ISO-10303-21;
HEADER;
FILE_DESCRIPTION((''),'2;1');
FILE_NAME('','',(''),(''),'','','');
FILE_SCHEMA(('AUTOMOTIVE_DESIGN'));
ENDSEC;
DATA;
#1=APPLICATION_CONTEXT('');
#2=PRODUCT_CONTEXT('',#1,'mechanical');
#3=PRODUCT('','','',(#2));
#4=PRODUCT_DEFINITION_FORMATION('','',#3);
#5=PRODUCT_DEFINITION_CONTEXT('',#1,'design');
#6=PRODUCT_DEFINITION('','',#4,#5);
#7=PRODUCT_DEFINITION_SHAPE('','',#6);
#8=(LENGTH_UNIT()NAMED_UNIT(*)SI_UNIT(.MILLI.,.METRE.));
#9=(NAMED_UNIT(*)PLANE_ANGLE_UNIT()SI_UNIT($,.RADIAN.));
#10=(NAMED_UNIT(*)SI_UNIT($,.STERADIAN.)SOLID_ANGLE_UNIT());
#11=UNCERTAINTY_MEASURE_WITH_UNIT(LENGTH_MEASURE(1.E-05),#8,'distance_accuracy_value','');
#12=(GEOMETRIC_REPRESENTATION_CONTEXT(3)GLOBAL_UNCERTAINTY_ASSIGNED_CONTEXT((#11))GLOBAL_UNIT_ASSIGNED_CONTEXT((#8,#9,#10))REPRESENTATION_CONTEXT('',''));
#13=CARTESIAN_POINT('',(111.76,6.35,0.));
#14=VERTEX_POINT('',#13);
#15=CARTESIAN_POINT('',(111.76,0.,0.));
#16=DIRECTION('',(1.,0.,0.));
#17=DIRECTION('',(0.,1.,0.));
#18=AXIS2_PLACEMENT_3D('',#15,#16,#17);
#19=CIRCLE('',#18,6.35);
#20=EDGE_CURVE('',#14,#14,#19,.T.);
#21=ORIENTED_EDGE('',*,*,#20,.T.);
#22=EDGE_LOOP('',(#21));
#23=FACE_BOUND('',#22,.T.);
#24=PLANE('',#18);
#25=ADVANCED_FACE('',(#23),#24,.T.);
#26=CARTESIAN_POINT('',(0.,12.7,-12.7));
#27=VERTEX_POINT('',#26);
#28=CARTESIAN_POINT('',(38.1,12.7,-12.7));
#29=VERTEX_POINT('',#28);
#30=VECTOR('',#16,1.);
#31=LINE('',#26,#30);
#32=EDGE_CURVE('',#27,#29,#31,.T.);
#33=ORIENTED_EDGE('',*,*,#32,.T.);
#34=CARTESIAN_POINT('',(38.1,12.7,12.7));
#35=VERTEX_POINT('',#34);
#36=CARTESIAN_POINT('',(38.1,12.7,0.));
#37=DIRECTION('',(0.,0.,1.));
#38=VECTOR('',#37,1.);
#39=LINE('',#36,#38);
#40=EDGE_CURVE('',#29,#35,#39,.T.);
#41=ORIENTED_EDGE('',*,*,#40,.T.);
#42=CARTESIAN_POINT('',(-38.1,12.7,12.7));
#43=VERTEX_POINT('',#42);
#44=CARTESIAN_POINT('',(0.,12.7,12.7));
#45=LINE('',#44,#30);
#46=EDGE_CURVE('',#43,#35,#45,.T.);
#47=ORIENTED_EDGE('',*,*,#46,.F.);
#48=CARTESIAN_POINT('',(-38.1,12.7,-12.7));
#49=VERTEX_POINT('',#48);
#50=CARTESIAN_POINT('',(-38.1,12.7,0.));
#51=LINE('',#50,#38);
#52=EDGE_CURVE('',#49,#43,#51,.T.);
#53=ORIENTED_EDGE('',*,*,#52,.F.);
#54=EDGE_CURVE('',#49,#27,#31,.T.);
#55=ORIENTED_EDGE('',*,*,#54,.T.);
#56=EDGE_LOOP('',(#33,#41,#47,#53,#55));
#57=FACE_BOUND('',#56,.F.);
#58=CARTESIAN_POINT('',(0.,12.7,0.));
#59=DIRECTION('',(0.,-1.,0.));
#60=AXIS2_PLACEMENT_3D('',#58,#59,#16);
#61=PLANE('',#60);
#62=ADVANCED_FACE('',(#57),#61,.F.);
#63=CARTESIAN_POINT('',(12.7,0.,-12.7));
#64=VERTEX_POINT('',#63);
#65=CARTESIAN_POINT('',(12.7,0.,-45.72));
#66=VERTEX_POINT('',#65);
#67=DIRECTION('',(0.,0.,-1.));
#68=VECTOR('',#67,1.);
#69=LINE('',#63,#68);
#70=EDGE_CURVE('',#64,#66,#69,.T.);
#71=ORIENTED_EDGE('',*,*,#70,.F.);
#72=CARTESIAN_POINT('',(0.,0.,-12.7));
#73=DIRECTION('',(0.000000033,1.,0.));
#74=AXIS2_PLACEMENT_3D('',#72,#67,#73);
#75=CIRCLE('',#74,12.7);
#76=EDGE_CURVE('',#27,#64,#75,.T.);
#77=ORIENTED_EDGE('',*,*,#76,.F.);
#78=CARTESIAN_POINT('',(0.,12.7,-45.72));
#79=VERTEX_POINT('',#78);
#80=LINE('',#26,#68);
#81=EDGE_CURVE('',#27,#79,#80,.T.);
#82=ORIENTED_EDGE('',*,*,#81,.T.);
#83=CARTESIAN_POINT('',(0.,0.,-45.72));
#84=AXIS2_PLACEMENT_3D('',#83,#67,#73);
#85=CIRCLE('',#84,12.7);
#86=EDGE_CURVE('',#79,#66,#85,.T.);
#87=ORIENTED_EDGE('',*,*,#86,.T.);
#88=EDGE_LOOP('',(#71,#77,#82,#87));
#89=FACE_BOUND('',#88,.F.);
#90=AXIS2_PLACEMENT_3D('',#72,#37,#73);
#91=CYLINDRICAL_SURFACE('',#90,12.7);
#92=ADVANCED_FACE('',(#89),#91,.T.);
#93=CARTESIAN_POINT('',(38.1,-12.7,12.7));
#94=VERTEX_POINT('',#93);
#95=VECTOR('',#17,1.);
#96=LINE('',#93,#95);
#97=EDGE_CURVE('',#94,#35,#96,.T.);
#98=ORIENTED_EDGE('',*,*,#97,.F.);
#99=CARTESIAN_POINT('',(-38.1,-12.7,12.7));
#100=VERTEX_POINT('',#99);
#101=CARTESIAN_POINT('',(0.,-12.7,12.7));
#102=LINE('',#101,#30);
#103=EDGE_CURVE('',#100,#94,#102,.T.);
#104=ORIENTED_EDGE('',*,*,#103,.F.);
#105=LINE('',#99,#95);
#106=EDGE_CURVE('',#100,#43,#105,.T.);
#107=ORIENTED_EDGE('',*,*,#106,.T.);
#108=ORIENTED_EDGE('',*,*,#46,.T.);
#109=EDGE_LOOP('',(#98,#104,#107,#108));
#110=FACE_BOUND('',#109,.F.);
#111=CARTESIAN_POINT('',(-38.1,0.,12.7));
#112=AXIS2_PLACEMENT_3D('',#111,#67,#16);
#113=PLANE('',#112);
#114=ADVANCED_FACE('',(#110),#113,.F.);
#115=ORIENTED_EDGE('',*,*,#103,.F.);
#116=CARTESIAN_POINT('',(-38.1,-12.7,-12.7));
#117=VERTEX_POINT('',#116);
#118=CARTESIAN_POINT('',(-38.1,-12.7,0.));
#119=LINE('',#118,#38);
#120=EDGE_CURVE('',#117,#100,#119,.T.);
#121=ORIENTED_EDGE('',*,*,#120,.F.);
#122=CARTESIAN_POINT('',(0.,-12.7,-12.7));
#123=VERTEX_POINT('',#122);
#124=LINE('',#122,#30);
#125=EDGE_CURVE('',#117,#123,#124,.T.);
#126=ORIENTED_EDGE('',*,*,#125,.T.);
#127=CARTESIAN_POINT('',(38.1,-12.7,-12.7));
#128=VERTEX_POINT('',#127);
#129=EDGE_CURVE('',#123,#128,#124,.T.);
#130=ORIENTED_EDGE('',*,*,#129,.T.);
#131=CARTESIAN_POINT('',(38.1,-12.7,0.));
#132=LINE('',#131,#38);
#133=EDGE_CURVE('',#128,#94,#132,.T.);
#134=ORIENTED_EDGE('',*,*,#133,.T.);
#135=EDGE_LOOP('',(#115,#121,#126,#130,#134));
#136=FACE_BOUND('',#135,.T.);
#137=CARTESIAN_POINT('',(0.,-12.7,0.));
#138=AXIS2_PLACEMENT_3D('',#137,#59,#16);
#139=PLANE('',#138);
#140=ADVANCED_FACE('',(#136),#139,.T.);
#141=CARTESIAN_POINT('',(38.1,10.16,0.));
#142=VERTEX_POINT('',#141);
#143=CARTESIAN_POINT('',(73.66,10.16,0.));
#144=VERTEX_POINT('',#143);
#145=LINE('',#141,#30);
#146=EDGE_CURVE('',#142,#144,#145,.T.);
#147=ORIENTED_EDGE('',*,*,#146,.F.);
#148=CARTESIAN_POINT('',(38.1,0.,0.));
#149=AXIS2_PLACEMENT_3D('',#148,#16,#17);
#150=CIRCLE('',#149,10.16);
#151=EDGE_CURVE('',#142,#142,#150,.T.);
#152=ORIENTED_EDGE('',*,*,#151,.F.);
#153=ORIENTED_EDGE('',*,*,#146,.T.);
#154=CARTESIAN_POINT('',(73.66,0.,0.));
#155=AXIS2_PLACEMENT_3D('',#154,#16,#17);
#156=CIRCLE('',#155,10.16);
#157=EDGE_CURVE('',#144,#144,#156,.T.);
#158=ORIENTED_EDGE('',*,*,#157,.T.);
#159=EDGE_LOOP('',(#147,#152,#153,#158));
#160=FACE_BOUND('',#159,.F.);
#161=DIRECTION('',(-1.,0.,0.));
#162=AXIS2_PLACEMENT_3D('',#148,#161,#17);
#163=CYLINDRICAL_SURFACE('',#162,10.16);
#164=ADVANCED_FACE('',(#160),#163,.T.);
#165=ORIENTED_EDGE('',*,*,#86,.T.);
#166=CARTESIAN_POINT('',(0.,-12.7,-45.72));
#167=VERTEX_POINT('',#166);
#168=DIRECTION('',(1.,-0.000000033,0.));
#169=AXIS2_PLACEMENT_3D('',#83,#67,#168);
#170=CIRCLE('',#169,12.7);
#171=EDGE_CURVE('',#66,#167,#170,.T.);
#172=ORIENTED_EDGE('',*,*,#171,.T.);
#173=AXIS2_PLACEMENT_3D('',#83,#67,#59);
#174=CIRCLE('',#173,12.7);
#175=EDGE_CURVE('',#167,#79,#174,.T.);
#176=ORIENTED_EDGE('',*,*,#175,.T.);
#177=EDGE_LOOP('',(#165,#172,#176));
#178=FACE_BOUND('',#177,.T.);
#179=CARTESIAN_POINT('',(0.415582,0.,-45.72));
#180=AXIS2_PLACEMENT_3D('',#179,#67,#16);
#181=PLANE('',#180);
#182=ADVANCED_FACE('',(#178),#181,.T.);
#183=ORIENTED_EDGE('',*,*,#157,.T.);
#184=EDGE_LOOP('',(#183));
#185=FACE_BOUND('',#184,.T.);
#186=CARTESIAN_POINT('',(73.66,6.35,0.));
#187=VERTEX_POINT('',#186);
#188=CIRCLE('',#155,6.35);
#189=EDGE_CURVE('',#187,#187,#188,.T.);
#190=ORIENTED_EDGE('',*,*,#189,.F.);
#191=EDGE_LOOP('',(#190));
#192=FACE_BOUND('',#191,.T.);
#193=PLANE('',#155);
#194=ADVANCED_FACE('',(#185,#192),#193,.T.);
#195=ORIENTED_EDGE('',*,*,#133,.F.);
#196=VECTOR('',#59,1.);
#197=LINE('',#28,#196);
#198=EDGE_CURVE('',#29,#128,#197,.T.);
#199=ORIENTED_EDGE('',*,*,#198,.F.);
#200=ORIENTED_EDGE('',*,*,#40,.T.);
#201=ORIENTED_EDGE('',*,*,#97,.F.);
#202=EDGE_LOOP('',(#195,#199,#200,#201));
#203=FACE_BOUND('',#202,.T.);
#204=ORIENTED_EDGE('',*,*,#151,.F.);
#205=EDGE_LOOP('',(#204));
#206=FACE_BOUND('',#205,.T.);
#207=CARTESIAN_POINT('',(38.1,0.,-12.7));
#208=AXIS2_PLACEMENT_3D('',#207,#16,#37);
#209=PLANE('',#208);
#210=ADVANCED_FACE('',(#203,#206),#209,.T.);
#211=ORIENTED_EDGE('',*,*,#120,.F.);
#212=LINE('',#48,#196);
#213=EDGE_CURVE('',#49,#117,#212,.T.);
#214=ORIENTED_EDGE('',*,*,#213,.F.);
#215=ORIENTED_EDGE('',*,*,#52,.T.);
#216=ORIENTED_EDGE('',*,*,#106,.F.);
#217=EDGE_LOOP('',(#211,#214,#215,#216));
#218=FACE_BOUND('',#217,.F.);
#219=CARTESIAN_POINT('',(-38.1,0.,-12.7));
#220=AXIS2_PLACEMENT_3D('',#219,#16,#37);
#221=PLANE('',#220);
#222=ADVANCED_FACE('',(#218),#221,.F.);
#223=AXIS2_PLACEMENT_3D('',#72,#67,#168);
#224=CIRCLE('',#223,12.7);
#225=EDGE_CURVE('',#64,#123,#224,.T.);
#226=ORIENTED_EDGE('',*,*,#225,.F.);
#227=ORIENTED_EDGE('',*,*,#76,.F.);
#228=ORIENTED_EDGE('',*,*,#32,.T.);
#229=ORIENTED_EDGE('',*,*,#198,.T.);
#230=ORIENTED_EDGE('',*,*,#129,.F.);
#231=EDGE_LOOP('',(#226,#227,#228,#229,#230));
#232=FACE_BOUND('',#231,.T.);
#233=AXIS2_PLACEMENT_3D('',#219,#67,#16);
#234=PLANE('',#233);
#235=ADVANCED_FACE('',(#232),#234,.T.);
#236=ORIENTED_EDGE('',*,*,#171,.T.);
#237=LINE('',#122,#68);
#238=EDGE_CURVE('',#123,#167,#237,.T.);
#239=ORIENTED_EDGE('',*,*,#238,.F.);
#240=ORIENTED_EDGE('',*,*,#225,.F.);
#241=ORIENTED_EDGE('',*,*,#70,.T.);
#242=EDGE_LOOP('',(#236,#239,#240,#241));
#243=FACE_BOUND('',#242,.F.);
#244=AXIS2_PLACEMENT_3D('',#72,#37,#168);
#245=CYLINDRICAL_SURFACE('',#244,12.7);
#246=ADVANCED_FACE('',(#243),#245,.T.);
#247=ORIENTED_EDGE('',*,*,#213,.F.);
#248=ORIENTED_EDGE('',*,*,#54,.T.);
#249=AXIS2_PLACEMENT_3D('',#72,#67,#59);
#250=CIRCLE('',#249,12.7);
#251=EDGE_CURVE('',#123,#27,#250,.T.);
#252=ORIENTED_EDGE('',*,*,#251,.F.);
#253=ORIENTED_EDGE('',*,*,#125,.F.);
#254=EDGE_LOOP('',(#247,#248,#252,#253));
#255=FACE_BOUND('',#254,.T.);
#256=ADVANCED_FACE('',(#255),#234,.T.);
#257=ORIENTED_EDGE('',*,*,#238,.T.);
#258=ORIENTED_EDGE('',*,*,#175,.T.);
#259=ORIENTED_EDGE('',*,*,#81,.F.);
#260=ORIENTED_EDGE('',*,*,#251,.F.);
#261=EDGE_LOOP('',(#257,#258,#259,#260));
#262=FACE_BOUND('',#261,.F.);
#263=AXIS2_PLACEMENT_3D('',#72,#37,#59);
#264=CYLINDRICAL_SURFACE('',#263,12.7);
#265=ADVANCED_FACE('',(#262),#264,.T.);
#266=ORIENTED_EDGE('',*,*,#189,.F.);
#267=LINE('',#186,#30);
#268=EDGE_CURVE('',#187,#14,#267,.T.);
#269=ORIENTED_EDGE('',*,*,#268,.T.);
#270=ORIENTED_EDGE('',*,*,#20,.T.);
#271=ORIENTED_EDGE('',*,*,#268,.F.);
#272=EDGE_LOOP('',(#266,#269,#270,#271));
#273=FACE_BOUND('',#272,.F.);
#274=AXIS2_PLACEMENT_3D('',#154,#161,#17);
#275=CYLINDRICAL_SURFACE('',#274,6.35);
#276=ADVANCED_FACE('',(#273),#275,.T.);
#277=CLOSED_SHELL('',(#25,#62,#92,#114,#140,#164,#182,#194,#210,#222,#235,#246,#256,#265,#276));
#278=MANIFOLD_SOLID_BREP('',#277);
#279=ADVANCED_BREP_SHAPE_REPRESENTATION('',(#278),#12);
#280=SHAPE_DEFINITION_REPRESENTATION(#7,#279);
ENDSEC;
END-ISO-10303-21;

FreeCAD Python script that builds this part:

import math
import FreeCAD as App
import Part
import Sketcher
from FreeCAD import Vector
Q = App.Units.Quantity

doc = App.newDocument("Part")
body = doc.addObject("PartDesign::Body", "Body")

sketch1 = body.newObject("Sketcher::SketchObject", "Sketch")
sketch1.AttachmentSupport = (doc.getObject("XZ_Plane"), [""])
sketch1.MapMode = "FlatFace"
sketch1.addGeometry(Part.LineSegment(Vector(-38.1, 12.7, 0), Vector(-38.1, -12.7, 0)), False)
sketch1.addGeometry(Part.LineSegment(Vector(-38.1, -12.7, 0), Vector(38.1, -12.7, 0)), False)
sketch1.addGeometry(Part.LineSegment(Vector(38.1, -12.7, 0), Vector(38.1, 12.7, 0)), False)
sketch1.addGeometry(Part.LineSegment(Vector(38.1, 12.7, 0), Vector(-38.1, 12.7, 0)), False)
sketch1.addConstraint(Sketcher.Constraint("Coincident", 0, 2, 1, 1))
sketch1.addConstraint(Sketcher.Constraint("Coincident", 1, 2, 2, 1))
sketch1.addConstraint(Sketcher.Constraint("Coincident", 2, 2, 3, 1))
sketch1.addConstraint(Sketcher.Constraint("Coincident", 3, 2, 0, 1))
sketch1.addConstraint(Sketcher.Constraint("Vertical", 0))
sketch1.addConstraint(Sketcher.Constraint("Horizontal", 1))
sketch1.addConstraint(Sketcher.Constraint("Vertical", 2))
sketch1.addConstraint(Sketcher.Constraint("Horizontal", 3))
sketch1.addConstraint(Sketcher.Constraint("Symmetric", 0, 2, 2, 2, -1, 1))
sketch1.addConstraint(Sketcher.Constraint("DistanceX", 1, 1, 1, 2, Q("3 in")))
sketch1.addConstraint(Sketcher.Constraint("DistanceY", 0, 2, 0, 1, Q("1 in")))
pad1 = body.newObject("PartDesign::Pad", "Pad")
pad1.Profile = sketch1
pad1.Length = Q("1 in")
pad1.Midplane = True

sketch2 = body.newObject("Sketcher::SketchObject", "Sketch001")
sketch2.AttachmentSupport = (doc.getObject("XY_Plane"), [""])
sketch2.MapMode = "FlatFace"
sketch2.AttachmentOffset = App.Placement(Vector(0, 0, -0.5 * 25.4), App.Rotation())
sketch2.addGeometry(Part.ArcOfCircle(Part.Circle(Vector(0, 0, 0), Vector(0, 0, 1), 12.7), math.radians(0.000002), math.radians(89.999998)), False)
sketch2.addGeometry(Part.ArcOfCircle(Part.Circle(Vector(0, 0, 0), Vector(0, 0, 1), 12.7), math.radians(-89.999998), math.radians(-0.000002)), False)
sketch2.addGeometry(Part.ArcOfCircle(Part.Circle(Vector(0, 0, 0), Vector(0, 0, 1), 12.7), math.radians(90), math.radians(270)), False)
sketch2.addConstraint(Sketcher.Constraint("Tangent", 0, 1, 1, 2))
sketch2.addConstraint(Sketcher.Constraint("Tangent", 1, 1, 2, 2))
sketch2.addConstraint(Sketcher.Constraint("Tangent", 2, 1, 0, 2))
sketch2.addConstraint(Sketcher.Constraint("Coincident", 0, 3, -1, 1))
sketch2.addConstraint(Sketcher.Constraint("PointOnObject", 0, 1, -1))
sketch2.addConstraint(Sketcher.Constraint("PointOnObject", 1, 1, -2))
sketch2.addConstraint(Sketcher.Constraint("PointOnObject", 2, 1, -2))
sketch2.addConstraint(Sketcher.Constraint("Radius", 0, Q("0.5 in")))
pad2 = body.newObject("PartDesign::Pad", "Pad001")
pad2.Profile = sketch2
pad2.Length = Q("1.3 in")
pad2.Reversed = True

sketch3 = body.newObject("Sketcher::SketchObject", "Sketch002")
sketch3.AttachmentSupport = (doc.getObject("YZ_Plane"), [""])
sketch3.MapMode = "FlatFace"
sketch3.AttachmentOffset = App.Placement(Vector(0, 0, 1.5 * 25.4), App.Rotation())
sketch3.addGeometry(Part.Circle(Vector(0, 0, 0), Vector(0, 0, 1), 10.16), False)
sketch3.addConstraint(Sketcher.Constraint("Coincident", 0, 3, -1, 1))
sketch3.addConstraint(Sketcher.Constraint("Diameter", 0, Q("0.8 in")))
pad3 = body.newObject("PartDesign::Pad", "Pad002")
pad3.Profile = sketch3
pad3.Length = Q("1.4 in")

sketch4 = body.newObject("Sketcher::SketchObject", "Sketch003")
sketch4.AttachmentSupport = (doc.getObject("YZ_Plane"), [""])
sketch4.MapMode = "FlatFace"
sketch4.AttachmentOffset = App.Placement(Vector(0, 0, 2.9 * 25.4), App.Rotation())
sketch4.addGeometry(Part.Circle(Vector(0, 0, 0), Vector(0, 0, 1), 6.35), False)
sketch4.addConstraint(Sketcher.Constraint("Coincident", 0, 3, -1, 1))
sketch4.addConstraint(Sketcher.Constraint("Diameter", 0, Q("0.5 in")))
pad4 = body.newObject("PartDesign::Pad", "Pad003")
pad4.Profile = sketch4
pad4.Length = Q("1.5 in")

doc.recompute()
